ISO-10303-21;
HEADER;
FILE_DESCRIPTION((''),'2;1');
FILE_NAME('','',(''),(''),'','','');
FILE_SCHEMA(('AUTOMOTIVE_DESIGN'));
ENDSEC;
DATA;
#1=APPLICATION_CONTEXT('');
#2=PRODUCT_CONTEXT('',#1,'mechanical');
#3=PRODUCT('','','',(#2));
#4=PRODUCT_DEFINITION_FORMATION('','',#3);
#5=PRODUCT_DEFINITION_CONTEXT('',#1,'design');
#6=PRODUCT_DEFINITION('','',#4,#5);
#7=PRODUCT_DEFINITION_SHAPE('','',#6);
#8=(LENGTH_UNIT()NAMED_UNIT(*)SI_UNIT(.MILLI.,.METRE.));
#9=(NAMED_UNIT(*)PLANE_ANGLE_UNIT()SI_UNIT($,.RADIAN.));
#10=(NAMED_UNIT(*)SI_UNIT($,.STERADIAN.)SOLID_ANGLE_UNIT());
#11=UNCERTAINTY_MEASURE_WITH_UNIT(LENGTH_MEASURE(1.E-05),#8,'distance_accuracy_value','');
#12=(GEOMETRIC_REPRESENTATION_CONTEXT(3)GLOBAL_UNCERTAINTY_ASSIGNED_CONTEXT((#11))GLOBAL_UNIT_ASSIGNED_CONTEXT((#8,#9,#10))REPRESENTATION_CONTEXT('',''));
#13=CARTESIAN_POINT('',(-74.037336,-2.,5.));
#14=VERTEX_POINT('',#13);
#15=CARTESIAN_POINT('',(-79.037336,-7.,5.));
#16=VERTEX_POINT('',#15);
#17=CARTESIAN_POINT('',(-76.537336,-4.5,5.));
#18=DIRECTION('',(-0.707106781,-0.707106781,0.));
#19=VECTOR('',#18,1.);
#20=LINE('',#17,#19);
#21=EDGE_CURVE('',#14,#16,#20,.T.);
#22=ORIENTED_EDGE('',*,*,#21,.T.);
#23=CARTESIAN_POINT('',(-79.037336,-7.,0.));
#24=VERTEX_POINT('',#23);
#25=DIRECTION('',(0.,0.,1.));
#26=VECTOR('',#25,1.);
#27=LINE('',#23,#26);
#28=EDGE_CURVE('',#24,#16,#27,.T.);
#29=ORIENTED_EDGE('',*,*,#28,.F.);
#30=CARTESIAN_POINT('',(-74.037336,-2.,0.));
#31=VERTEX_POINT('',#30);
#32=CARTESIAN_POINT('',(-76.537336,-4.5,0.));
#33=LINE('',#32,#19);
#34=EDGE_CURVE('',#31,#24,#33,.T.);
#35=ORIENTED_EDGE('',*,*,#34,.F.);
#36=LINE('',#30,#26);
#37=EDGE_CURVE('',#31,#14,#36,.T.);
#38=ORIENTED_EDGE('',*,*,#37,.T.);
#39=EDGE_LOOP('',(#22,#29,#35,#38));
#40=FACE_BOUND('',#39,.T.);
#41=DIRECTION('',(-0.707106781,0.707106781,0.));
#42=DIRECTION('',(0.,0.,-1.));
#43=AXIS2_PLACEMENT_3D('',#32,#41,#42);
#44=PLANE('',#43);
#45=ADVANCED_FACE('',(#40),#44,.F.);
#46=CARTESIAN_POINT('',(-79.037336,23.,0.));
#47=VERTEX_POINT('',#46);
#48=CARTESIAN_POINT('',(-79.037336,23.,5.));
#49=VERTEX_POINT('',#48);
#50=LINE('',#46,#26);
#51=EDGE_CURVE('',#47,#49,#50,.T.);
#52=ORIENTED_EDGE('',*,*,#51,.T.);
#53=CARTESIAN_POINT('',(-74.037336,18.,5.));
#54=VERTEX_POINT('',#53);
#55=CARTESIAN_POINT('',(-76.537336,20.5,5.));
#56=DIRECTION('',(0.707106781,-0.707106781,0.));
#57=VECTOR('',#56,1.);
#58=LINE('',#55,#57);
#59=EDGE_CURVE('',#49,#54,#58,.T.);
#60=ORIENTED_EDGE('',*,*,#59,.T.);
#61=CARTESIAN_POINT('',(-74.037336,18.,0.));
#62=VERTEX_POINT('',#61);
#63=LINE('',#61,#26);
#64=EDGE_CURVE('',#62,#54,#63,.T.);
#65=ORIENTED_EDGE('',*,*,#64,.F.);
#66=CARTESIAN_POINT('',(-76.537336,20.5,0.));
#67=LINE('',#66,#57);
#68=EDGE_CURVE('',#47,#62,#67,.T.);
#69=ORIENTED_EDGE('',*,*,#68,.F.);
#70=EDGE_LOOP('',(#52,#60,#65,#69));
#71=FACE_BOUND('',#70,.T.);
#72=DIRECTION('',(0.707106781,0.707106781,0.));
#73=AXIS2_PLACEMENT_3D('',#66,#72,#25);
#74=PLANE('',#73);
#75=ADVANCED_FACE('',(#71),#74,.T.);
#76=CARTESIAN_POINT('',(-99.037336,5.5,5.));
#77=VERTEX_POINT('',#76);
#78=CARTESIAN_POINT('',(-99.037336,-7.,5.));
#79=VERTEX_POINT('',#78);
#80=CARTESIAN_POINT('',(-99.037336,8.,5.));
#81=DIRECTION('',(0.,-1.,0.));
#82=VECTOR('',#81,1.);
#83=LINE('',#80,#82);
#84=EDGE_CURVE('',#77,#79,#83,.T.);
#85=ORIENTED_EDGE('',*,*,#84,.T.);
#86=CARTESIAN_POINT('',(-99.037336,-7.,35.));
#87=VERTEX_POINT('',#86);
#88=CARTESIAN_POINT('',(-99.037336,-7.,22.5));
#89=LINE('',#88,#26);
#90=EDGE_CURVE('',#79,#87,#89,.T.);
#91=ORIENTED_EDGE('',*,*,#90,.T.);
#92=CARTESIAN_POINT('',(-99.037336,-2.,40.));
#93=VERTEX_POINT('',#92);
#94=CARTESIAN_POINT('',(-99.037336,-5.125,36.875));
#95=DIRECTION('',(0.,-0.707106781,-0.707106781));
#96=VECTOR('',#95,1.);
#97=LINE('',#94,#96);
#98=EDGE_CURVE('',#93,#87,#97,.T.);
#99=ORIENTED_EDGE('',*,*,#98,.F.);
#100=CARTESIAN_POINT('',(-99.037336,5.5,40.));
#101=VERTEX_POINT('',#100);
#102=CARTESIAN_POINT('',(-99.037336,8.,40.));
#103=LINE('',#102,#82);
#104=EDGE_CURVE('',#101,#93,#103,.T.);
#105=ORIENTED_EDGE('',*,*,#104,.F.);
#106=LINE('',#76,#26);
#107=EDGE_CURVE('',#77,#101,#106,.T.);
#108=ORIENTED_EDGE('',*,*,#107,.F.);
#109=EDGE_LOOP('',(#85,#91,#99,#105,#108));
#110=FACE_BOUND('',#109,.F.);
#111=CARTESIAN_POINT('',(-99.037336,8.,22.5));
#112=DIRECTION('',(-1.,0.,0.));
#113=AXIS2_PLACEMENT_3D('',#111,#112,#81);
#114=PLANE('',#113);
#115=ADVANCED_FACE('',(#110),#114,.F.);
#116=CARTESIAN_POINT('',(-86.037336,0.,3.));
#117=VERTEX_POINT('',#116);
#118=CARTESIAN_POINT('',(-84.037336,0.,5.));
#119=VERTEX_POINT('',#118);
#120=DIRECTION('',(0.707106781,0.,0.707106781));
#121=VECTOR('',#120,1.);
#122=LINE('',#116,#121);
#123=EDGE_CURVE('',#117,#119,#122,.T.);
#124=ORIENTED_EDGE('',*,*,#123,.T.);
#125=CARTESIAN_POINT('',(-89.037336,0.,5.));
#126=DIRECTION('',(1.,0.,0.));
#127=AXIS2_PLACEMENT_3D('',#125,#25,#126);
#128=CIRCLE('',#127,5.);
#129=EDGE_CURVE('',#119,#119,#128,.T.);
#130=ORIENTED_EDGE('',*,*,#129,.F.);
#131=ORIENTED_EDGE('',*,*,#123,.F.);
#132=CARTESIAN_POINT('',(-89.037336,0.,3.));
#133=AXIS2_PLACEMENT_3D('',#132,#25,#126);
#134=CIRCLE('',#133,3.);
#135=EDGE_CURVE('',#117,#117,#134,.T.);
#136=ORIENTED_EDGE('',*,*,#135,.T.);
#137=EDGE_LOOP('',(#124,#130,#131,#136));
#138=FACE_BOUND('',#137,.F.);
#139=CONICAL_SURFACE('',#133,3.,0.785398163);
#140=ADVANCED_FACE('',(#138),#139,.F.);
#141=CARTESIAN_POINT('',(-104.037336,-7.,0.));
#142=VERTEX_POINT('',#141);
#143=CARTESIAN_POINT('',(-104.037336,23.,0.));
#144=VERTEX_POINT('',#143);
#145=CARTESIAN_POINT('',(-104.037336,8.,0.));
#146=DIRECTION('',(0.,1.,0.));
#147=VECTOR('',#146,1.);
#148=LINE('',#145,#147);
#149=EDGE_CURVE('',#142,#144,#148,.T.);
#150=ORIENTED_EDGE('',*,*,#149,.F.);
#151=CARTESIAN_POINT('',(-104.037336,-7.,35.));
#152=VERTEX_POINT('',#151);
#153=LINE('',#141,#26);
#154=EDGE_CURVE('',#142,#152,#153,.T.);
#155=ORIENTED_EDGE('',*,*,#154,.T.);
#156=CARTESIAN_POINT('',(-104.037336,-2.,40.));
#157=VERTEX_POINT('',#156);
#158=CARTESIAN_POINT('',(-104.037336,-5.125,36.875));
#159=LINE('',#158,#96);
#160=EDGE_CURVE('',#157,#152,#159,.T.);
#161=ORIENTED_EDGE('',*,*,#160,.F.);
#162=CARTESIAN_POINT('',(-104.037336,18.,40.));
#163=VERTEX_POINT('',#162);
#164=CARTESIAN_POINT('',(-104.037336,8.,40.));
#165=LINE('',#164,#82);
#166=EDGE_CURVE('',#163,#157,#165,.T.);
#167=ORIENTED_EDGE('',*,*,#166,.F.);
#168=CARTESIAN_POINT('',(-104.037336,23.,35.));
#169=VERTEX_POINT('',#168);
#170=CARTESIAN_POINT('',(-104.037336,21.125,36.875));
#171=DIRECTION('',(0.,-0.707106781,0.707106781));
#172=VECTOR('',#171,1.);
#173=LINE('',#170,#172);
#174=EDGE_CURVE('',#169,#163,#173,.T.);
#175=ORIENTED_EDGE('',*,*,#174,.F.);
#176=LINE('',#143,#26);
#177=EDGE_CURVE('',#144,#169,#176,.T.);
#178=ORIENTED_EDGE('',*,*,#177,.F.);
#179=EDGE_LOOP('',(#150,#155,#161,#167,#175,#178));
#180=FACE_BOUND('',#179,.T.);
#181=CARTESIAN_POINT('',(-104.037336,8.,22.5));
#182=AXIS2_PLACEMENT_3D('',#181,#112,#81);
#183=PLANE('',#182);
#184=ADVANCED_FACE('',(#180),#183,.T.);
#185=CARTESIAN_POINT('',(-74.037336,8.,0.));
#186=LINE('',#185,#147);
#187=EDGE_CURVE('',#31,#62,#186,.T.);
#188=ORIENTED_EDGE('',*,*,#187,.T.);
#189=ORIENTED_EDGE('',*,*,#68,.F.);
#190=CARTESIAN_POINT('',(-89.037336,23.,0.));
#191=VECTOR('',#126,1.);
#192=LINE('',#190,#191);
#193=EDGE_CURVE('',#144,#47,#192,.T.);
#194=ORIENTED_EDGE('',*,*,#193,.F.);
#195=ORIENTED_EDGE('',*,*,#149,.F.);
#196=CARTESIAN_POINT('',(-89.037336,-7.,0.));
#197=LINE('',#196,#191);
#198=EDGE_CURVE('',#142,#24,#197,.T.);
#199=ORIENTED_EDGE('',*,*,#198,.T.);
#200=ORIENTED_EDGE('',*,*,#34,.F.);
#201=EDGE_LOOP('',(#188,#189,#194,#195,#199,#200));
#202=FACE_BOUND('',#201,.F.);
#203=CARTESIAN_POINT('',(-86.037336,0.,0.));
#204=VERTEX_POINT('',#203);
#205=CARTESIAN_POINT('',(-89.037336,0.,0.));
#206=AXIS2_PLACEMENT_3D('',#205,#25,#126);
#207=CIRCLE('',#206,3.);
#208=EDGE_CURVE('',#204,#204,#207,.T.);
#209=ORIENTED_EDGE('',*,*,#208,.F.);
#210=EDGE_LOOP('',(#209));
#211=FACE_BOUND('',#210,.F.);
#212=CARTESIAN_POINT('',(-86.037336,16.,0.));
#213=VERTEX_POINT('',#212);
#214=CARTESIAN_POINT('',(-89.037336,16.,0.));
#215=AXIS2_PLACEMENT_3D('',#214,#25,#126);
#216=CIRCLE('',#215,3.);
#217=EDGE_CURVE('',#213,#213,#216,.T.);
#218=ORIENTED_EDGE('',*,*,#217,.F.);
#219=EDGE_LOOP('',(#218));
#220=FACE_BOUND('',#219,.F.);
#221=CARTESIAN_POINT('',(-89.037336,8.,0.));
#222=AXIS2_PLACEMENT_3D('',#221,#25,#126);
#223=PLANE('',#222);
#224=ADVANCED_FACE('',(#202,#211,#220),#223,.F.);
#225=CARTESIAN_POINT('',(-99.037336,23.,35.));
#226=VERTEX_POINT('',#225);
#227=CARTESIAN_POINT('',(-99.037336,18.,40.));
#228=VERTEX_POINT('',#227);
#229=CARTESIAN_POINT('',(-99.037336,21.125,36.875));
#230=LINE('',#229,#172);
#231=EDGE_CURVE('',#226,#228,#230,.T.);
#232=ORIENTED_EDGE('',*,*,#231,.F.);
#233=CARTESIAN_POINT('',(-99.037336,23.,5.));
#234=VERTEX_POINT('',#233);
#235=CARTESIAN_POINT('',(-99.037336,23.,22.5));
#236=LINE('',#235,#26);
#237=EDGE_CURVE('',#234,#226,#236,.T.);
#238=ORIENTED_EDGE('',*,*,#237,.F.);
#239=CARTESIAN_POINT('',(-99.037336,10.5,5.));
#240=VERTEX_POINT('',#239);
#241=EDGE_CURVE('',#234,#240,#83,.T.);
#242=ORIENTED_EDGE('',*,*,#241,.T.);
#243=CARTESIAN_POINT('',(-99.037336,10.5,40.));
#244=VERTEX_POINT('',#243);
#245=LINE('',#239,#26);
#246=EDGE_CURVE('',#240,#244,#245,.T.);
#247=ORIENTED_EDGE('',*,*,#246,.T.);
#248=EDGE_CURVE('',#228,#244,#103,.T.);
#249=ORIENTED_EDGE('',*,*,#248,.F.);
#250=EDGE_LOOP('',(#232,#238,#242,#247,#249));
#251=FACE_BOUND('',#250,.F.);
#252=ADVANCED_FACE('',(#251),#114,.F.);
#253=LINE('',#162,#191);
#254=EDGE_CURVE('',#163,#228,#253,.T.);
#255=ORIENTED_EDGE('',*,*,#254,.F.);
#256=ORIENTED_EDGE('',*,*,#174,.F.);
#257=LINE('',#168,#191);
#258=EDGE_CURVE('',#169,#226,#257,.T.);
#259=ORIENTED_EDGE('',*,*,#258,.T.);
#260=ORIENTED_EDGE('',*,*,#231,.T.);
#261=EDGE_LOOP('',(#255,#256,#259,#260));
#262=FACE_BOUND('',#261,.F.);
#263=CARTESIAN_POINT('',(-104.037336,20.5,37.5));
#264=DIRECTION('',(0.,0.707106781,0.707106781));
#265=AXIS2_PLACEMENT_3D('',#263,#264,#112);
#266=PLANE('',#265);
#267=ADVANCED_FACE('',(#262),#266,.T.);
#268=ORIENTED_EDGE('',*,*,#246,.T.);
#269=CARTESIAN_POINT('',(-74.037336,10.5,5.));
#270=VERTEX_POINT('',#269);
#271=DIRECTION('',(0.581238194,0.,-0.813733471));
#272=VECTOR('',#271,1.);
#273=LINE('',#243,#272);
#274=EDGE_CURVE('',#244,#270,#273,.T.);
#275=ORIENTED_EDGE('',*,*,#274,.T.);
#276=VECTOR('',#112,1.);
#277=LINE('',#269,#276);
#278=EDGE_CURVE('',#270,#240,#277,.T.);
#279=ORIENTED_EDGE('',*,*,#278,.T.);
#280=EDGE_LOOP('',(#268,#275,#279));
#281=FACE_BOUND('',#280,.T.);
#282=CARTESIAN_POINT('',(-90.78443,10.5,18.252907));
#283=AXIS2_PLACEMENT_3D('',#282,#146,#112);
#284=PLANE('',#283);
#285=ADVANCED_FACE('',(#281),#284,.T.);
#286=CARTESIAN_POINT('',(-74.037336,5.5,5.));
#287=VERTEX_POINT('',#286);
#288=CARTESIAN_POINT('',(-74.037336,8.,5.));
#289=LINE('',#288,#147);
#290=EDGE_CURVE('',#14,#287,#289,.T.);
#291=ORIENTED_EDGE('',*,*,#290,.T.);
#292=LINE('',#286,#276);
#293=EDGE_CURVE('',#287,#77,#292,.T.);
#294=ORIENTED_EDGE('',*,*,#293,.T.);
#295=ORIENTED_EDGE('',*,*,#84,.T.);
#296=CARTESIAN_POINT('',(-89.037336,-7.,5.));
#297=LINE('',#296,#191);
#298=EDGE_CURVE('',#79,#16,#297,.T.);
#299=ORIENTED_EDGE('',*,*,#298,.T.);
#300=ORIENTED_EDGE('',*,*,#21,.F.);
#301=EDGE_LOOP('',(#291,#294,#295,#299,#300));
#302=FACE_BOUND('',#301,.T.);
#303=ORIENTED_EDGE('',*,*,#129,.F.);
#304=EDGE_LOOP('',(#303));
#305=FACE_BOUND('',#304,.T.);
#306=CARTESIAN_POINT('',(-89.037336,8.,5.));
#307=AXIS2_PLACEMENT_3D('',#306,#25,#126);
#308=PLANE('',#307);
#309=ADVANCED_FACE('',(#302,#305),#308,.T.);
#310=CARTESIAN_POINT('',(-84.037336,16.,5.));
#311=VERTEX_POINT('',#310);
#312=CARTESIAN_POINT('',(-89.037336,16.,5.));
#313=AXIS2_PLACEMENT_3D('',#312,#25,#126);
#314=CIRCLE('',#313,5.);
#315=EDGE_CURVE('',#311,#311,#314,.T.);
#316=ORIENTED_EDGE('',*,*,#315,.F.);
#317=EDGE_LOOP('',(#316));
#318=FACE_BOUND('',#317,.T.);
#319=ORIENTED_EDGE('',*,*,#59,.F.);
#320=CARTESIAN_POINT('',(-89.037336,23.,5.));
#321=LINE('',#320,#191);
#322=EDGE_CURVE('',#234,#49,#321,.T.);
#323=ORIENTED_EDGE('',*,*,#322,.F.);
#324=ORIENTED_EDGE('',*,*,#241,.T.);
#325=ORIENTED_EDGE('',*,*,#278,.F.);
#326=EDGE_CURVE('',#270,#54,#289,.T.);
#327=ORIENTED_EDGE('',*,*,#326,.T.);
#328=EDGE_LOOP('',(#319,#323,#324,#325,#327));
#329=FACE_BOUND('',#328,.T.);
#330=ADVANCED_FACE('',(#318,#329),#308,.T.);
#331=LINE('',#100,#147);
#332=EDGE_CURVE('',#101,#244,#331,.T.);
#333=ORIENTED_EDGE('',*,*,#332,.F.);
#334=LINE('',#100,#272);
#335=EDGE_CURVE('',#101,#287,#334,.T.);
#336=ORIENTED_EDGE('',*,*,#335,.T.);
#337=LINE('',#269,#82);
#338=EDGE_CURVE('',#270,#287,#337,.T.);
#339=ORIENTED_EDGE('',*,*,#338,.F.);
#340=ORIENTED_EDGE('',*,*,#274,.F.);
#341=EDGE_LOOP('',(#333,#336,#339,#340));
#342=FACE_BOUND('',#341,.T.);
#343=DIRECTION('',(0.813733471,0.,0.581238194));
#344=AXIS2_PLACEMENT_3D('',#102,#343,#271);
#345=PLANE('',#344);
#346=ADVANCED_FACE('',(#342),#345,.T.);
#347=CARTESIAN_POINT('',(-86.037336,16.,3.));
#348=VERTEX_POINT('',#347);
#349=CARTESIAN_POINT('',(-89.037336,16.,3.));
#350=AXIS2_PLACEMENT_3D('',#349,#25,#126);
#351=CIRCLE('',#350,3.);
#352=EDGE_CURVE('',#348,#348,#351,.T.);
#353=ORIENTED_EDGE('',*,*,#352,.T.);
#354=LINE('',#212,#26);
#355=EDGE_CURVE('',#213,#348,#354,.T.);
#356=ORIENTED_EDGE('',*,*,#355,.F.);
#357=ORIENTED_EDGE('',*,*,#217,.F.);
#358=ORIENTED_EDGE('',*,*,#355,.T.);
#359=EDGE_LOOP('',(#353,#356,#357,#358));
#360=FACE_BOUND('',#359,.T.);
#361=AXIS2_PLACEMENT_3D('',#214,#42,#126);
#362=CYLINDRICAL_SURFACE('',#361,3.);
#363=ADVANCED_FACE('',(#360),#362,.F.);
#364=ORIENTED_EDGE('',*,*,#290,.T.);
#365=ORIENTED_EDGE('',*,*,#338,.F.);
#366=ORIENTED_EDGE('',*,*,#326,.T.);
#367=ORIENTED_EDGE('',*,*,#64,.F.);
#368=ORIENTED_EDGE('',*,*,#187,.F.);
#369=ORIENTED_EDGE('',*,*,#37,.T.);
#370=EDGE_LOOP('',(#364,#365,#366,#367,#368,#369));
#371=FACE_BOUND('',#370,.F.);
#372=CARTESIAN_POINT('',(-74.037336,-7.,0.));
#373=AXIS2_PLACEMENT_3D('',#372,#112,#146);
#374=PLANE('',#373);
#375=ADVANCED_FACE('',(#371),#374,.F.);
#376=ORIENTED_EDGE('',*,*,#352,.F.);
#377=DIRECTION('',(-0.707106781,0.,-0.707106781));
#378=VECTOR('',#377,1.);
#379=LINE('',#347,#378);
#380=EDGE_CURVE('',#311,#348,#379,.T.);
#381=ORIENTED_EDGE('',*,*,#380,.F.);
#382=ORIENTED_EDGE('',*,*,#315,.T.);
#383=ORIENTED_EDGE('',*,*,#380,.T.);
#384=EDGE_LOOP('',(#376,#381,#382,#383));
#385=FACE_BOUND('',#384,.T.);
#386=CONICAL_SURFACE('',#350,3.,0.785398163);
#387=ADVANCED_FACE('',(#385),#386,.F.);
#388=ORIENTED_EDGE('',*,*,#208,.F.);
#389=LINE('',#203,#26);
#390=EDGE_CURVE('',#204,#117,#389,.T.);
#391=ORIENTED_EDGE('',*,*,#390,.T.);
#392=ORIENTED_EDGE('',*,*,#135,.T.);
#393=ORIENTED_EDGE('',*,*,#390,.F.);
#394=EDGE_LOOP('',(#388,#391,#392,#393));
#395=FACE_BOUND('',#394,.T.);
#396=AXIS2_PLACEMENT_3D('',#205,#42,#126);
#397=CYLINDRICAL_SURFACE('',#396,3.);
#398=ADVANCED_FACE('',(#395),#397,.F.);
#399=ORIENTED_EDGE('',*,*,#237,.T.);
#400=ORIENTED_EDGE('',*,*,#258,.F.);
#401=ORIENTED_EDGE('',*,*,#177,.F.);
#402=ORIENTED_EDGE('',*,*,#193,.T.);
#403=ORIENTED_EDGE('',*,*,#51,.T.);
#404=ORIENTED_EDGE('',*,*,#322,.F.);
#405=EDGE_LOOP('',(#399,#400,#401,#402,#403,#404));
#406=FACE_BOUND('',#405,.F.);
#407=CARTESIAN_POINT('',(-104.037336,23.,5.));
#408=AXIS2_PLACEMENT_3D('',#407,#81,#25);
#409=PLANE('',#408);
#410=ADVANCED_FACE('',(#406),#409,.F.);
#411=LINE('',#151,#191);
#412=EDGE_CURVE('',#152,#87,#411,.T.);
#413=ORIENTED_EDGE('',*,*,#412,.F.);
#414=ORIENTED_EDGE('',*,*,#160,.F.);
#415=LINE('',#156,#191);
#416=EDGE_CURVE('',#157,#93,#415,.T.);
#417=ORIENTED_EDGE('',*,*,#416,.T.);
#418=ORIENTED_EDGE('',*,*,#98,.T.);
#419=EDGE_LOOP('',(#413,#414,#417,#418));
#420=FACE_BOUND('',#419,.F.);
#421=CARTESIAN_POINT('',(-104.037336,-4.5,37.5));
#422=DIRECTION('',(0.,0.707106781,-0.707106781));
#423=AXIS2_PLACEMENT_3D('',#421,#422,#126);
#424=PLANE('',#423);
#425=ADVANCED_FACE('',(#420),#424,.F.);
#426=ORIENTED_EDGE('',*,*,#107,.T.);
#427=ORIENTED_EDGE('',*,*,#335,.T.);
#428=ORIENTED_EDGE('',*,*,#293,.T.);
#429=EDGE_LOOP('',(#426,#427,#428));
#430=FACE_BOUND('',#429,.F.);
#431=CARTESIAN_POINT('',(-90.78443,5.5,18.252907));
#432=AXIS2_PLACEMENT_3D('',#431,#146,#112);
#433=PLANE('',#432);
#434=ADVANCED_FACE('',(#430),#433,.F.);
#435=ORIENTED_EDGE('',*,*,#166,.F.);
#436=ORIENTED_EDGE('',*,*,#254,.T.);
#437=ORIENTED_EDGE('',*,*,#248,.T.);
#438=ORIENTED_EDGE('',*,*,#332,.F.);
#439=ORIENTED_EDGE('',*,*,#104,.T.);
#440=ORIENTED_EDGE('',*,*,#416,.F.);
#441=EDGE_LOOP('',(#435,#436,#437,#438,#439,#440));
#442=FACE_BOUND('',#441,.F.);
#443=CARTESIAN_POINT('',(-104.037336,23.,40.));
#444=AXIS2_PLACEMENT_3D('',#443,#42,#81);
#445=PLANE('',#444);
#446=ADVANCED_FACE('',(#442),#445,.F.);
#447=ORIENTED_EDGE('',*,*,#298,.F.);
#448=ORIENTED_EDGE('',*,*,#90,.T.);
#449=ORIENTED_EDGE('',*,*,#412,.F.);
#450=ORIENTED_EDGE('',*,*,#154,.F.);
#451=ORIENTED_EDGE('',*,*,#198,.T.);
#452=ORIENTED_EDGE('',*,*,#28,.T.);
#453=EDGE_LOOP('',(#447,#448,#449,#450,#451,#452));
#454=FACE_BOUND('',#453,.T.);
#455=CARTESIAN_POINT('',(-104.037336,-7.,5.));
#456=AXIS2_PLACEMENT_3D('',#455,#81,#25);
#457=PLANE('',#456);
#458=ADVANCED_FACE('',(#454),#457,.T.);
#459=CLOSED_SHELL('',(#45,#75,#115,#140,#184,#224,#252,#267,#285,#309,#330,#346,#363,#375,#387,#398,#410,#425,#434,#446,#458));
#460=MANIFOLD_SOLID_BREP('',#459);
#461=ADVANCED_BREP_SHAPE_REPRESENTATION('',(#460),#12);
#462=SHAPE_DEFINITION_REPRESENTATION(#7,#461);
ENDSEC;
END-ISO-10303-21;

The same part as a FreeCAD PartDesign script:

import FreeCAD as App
import Part
import Sketcher
from FreeCAD import Vector


def edges_at(feature, points):
    """Names of the edges that pass closest to the given points."""
    edges = feature.Shape.Edges
    near = lambda p: min(range(len(edges)), key=lambda i: edges[i].distToShape(Part.Vertex(*p))[0])
    return sorted({f"Edge{near(p) + 1}" for p in points})


def add_polygon(sketch, points):
    """Adds a closed chain of lines whose ends are joined by coincident constraints."""
    first, n = sketch.GeometryCount, len(points)
    for a, b in zip(points, points[1:] + points[:1]):
        sketch.addGeometry(Part.LineSegment(App.Vector(*a, 0), App.Vector(*b, 0)), False)
    for i in range(n):
        sketch.addConstraint(Sketcher.Constraint("Coincident", first + i, 2, first + (i + 1) % n, 1))

doc = App.newDocument("Part")
body = doc.addObject("PartDesign::Body", "Body")

# Sketch on XY plane
sketch1 = body.newObject("Sketcher::SketchObject", "Sketch")
sketch1.AttachmentSupport = (doc.getObject("XY_Plane"), [""])
sketch1.MapMode = "FlatFace"
add_polygon(sketch1, [(-104, 23), (-104, -7), (-74, -7), (-74, 23)])  # lines 0-3
sketch1.addGeometry(Part.Circle(Vector(-89, 0, 0), Vector(0, 0, 1), 3), False)  # 4
sketch1.addGeometry(Part.Circle(Vector(-89, 16, 0), Vector(0, 0, 1), 3), False)  # 5
sketch1.addConstraint(Sketcher.Constraint("Vertical", 0))
sketch1.addConstraint(Sketcher.Constraint("Horizontal", 1))
sketch1.addConstraint(Sketcher.Constraint("Vertical", 2))
sketch1.addConstraint(Sketcher.Constraint("Horizontal", 3))
sketch1.addConstraint(Sketcher.Constraint("Equal", 4, 5))
sketch1.addConstraint(Sketcher.Constraint("PointOnObject", 4, 3, -1))
sketch1.addConstraint(Sketcher.Constraint("Vertical", 4, 3, 5, 3))
sketch1.addConstraint(Sketcher.Constraint("Equal", 3, 0))
sketch1.addConstraint(Sketcher.Constraint("Diameter", 4, 6.0))
sketch1.addConstraint(Sketcher.Constraint("DistanceX", 1, 1, 1, 2, 30.0))
sketch1.addConstraint(Sketcher.Constraint("DistanceY", -1, 1, 5, 3, 16.0))
sketch1.addConstraint(Sketcher.Constraint("DistanceY", 0, 2, -1, 1, 7.0))
sketch1.addConstraint(Sketcher.Constraint("DistanceX", 0, 2, 4, 3, 15.0))
sketch1.addConstraint(Sketcher.Constraint("DistanceX", 4, 3, -1, 1, 89.037336))
pad1 = body.newObject("PartDesign::Pad", "Pad")
pad1.Profile = sketch1
pad1.Length = 5

# Sketch on YZ plane
sketch2 = body.newObject("Sketcher::SketchObject", "Sketch001")
sketch2.AttachmentSupport = (doc.getObject("YZ_Plane"), [""])
sketch2.MapMode = "FlatFace"
sketch2.AttachmentOffset = App.Placement(Vector(0, 0, -104.037336), App.Rotation())
add_polygon(sketch2, [(23, 40), (23, 5), (-7, 5), (-7, 40)])  # lines 0-3
sketch2.addConstraint(Sketcher.Constraint("Vertical", 0))
sketch2.addConstraint(Sketcher.Constraint("Horizontal", 1))
sketch2.addConstraint(Sketcher.Constraint("Vertical", 2))
sketch2.addConstraint(Sketcher.Constraint("Horizontal", 3))
sketch2.addConstraint(Sketcher.Constraint("DistanceX", 1, 2, 1, 1, 30.0))
sketch2.addConstraint(Sketcher.Constraint("DistanceY", 0, 2, 0, 1, 35.0))
sketch2.addConstraint(Sketcher.Constraint("DistanceX", -1, 1, 0, 2, 23.0))
sketch2.addConstraint(Sketcher.Constraint("DistanceY", -1, 1, 0, 2, 5.0))
pad2 = body.newObject("PartDesign::Pad", "Pad001")
pad2.Profile = sketch2
pad2.Length = 5

# Sketch on XZ plane
sketch3 = body.newObject("Sketcher::SketchObject", "Sketch002")
sketch3.AttachmentSupport = (doc.getObject("XZ_Plane"), [""])
sketch3.MapMode = "FlatFace"
sketch3.AttachmentOffset = App.Placement(Vector(0, 0, -8), App.Rotation())
add_polygon(sketch3, [(-99, 5), (-99, 40), (-74, 5)])  # lines 0-2
sketch3.addConstraint(Sketcher.Constraint("Vertical", 0))
sketch3.addConstraint(Sketcher.Constraint("Horizontal", 2))
sketch3.addConstraint(Sketcher.Constraint("DistanceX", 2, 2, 2, 1, 25.0))
sketch3.addConstraint(Sketcher.Constraint("DistanceY", 0, 1, 0, 2, 35.0))
sketch3.addConstraint(Sketcher.Constraint("DistanceY", -1, 1, 0, 2, 40.0))
sketch3.addConstraint(Sketcher.Constraint("DistanceX", 0, 2, -1, 1, 99.037336))
pad3 = body.newObject("PartDesign::Pad", "Pad002")
pad3.Profile = sketch3
pad3.Length = 5
pad3.Midplane = True
doc.recompute()

chamfer = body.newObject("PartDesign::Chamfer", "Chamfer")
chamfer.Base = (pad3, edges_at(pad3, [
    (-101.537, -7, 40),
    (-101.537, 23, 40),
    (-74.037, -7, 2.5),
    (-74.037, 23, 2.5),
]))
chamfer.Size = 5
doc.recompute()

chamfer2 = body.newObject("PartDesign::Chamfer", "Chamfer001")
chamfer2.Base = (chamfer, edges_at(chamfer, [(-92.037, 0, 5), (-92.037, 16, 5)]))
chamfer2.Size = 2

doc.recompute()
